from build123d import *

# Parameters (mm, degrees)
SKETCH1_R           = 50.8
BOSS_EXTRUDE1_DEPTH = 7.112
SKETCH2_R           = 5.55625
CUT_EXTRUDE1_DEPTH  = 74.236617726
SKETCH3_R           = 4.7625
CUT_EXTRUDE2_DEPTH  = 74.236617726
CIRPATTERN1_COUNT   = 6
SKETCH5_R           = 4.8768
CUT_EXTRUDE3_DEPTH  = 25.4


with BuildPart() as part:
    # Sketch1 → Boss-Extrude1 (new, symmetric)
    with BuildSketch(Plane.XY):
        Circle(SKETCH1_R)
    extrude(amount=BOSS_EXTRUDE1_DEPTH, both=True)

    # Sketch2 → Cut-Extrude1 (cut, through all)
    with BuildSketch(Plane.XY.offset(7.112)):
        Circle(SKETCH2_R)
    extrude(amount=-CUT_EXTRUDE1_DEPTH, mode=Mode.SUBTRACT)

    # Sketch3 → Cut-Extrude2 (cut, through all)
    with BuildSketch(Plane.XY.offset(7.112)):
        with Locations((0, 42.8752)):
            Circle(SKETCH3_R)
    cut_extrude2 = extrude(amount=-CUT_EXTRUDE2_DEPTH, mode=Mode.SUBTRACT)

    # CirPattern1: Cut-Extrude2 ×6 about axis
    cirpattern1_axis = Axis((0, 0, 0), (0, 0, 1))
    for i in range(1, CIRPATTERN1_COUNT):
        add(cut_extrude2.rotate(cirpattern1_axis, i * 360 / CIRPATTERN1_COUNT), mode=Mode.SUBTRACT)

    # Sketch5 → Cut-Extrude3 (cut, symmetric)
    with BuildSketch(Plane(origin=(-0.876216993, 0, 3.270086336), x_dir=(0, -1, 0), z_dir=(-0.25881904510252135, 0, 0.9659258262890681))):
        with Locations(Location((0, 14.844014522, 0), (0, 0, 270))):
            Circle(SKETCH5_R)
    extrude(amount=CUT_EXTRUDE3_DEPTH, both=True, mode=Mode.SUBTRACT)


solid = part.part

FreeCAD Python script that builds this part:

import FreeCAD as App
import Part
import Sketcher

V = App.Vector
Q = App.Units.Quantity

doc = App.newDocument("Part")
body = doc.addObject("PartDesign::Body", "Body")

# Sketch on XY plane
sketch1 = body.newObject("Sketcher::SketchObject", "Sketch")
sketch1.AttachmentSupport = (doc.getObject("XY_Plane"), [""])
sketch1.MapMode = "FlatFace"
sketch1.addGeometry(Part.Circle(V(0, 0, 0), V(0, 0, 1), 51), False)
sketch1.addConstraint([
    Sketcher.Constraint("Coincident", 0, 3, -1, 1),
    Sketcher.Constraint("Diameter", 0, Q("4 in")),
])
pad1 = body.newObject("PartDesign::Pad", "Pad")
pad1.Profile = sketch1
pad1.Length = Q("0.56 in")
pad1.Midplane = True

# Sketch on XY plane
sketch2 = body.newObject("Sketcher::SketchObject", "Sketch001")
sketch2.AttachmentSupport = (doc.getObject("XY_Plane"), [""])
sketch2.MapMode = "FlatFace"
sketch2.AttachmentOffset = App.Placement(V(0, 0, 0.28 * 25.4), App.Rotation())
sketch2.addGeometry(Part.Circle(V(0, 0, 0), V(0, 0, 1), 6), False)
sketch2.addConstraint([
    Sketcher.Constraint("Coincident", 0, 3, -1, 1),
    Sketcher.Constraint("Diameter", 0, Q("0.4375 in")),
])
pocket1 = body.newObject("PartDesign::Pocket", "Pocket")
pocket1.Profile = sketch2
pocket1.Type = "ThroughAll"

# Sketch on XY plane
sketch3 = body.newObject("Sketcher::SketchObject", "Sketch002")
sketch3.AttachmentSupport = (doc.getObject("XY_Plane"), [""])
sketch3.MapMode = "FlatFace"
sketch3.AttachmentOffset = App.Placement(V(0, 0, 0.28 * 25.4), App.Rotation())
sketch3.addGeometry(Part.Circle(V(0, 42.9, 0), V(0, 0, 1), 4.8), False)
sketch3.addConstraint([
    Sketcher.Constraint("PointOnObject", 0, 3, -2),
    Sketcher.Constraint("Diameter", 0, Q("0.375 in")),
    Sketcher.Constraint("DistanceY", -1, 1, 0, 3, Q("1.688 in")),
])
pocket2 = body.newObject("PartDesign::Pocket", "Pocket001")
pocket2.Profile = sketch3
pocket2.Type = "ThroughAll"
doc.recompute()

polarpattern = body.newObject("PartDesign::PolarPattern", "PolarPattern")
polarpattern.Originals = [pocket2]
polarpattern.Axis = (doc.getObject("Z_Axis"), [""])
polarpattern.Angle = 360
polarpattern.Occurrences = 6
body.Tip = polarpattern

# Sketch on an angled plane
sketch4 = body.newObject("Sketcher::SketchObject", "Sketch003")
sketch4.Placement = App.Placement(V(-0.876217, 0, 3.270086), App.Rotation(V(0, -1, 0), V(0.965925826, 0, 0.258819045), V(-0.258819045, 0, 0.965925826), "ZXY"))
sketch4.addGeometry(Part.Circle(V(0, 14.8, 0), V(0, 0, 1), 4.9), False)
sketch4.addConstraint([
    Sketcher.Constraint("PointOnObject", 0, 3, -2),
    Sketcher.Constraint("Diameter", 0, Q("0.384 in")),
    Sketcher.Constraint("DistanceY", -1, 1, 0, 3, 14.844015),
])
pocket3 = body.newObject("PartDesign::Pocket", "Pocket002")
pocket3.Profile = sketch4
pocket3.Length = Q("2 in")
pocket3.Midplane = True

doc.recompute()
